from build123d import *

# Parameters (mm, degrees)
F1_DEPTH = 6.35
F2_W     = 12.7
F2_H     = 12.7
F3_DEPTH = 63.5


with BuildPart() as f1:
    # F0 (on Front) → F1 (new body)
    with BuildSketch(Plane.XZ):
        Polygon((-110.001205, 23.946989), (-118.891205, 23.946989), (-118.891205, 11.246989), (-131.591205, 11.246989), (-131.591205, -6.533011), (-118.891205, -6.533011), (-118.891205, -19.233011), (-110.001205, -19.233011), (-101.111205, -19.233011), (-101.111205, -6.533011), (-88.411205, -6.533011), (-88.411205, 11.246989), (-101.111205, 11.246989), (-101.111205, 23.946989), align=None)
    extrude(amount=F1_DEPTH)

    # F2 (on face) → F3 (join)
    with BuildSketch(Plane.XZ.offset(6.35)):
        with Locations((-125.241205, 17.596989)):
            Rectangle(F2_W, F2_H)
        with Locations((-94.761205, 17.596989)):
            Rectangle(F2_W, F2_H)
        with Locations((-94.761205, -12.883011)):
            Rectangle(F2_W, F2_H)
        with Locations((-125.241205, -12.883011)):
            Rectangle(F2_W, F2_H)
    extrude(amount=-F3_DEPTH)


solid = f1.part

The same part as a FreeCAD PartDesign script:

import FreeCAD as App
import Part
import Sketcher
Q = App.Units.Quantity

doc = App.newDocument("Part")
body = doc.addObject("PartDesign::Body", "Body")

# Sketch on XZ plane
sketch1 = body.newObject("Sketcher::SketchObject", "Sketch")
sketch1.AttachmentSupport = (doc.getObject("XZ_Plane"), [""])
sketch1.MapMode = "FlatFace"
sketch1.addGeometry([
    Part.LineSegment(App.Vector(-119, 24, 0), App.Vector(-119, 11, 0)),  # 0
    Part.LineSegment(App.Vector(-119, 11, 0), App.Vector(-132, 11, 0)),  # 1
    Part.LineSegment(App.Vector(-132, 11, 0), App.Vector(-132, -7, 0)),  # 2
    Part.LineSegment(App.Vector(-132, -7, 0), App.Vector(-119, -7, 0)),  # 3
    Part.LineSegment(App.Vector(-119, -7, 0), App.Vector(-119, -19, 0)),  # 4
    Part.LineSegment(App.Vector(-119, -19, 0), App.Vector(-101, -19, 0)),  # 5
    Part.LineSegment(App.Vector(-101, -19, 0), App.Vector(-101, -7, 0)),  # 6
    Part.LineSegment(App.Vector(-101, -7, 0), App.Vector(-88, -7, 0)),  # 7
    Part.LineSegment(App.Vector(-88, -7, 0), App.Vector(-88, 11, 0)),  # 8
    Part.LineSegment(App.Vector(-88, 11, 0), App.Vector(-101, 11, 0)),  # 9
    Part.LineSegment(App.Vector(-101, 11, 0), App.Vector(-101, 24, 0)),  # 10
    Part.LineSegment(App.Vector(-101, 24, 0), App.Vector(-119, 24, 0)),  # 11
], False)
sketch1.addConstraint([
    Sketcher.Constraint("Coincident", 0, 2, 1, 1),
    Sketcher.Constraint("Coincident", 1, 2, 2, 1),
    Sketcher.Constraint("Coincident", 2, 2, 3, 1),
    Sketcher.Constraint("Coincident", 3, 2, 4, 1),
    Sketcher.Constraint("Coincident", 4, 2, 5, 1),
    Sketcher.Constraint("Coincident", 5, 2, 6, 1),
    Sketcher.Constraint("Coincident", 6, 2, 7, 1),
    Sketcher.Constraint("Coincident", 7, 2, 8, 1),
    Sketcher.Constraint("Coincident", 8, 2, 9, 1),
    Sketcher.Constraint("Coincident", 9, 2, 10, 1),
    Sketcher.Constraint("Coincident", 10, 2, 11, 1),
    Sketcher.Constraint("Coincident", 11, 2, 0, 1),
    Sketcher.Constraint("Vertical", 0),
    Sketcher.Constraint("Horizontal", 1),
    Sketcher.Constraint("Vertical", 2),
    Sketcher.Constraint("Horizontal", 3),
    Sketcher.Constraint("Vertical", 4),
    Sketcher.Constraint("Horizontal", 5),
    Sketcher.Constraint("Vertical", 6),
    Sketcher.Constraint("Horizontal", 7),
    Sketcher.Constraint("Vertical", 8),
    Sketcher.Constraint("Horizontal", 9),
    Sketcher.Constraint("Vertical", 10),
    Sketcher.Constraint("Horizontal", 11),
    Sketcher.Constraint("Horizontal", 3, 2, 6, 2),
    Sketcher.Constraint("Horizontal", 1, 2, 8, 2),
    Sketcher.Constraint("Vertical", 0, 2, 3, 2),
    Sketcher.Constraint("Vertical", 6, 2, 9, 2),
    Sketcher.Constraint("Equal", 3, 7),
    Sketcher.Constraint("Equal", 9, 0),
    Sketcher.Constraint("Equal", 11, 2),
    Sketcher.Constraint("Equal", 0, 4),
    Sketcher.Constraint("DistanceX", 1, 2, 1, 1, Q("0.5 in")),
    Sketcher.Constraint("DistanceX", 5, 1, 5, 2, Q("0.7 in")),
    Sketcher.Constraint("DistanceY", -1, 1, 0, 2, 11.246989),
    Sketcher.Constraint("DistanceX", 0, 2, -1, 1, 118.891205),
])
pad1 = body.newObject("PartDesign::Pad", "Pad")
pad1.Profile = sketch1
pad1.Length = Q("0.25 in")

# Sketch on XZ plane
sketch2 = body.newObject("Sketcher::SketchObject", "Sketch001")
sketch2.AttachmentSupport = (doc.getObject("XZ_Plane"), [""])
sketch2.MapMode = "FlatFace"
sketch2.AttachmentOffset = App.Placement(App.Vector(0, 0, 0.25 * 25.4), App.Rotation())
sketch2.addGeometry([
    Part.LineSegment(App.Vector(-132, 24, 0), App.Vector(-132, 11, 0)),  # 0
    Part.LineSegment(App.Vector(-132, 11, 0), App.Vector(-119, 11, 0)),  # 1
    Part.LineSegment(App.Vector(-119, 11, 0), App.Vector(-119, 24, 0)),  # 2
    Part.LineSegment(App.Vector(-119, 24, 0), App.Vector(-132, 24, 0)),  # 3
    Part.LineSegment(App.Vector(-101, 24, 0), App.Vector(-101, 11, 0)),  # 4
    Part.LineSegment(App.Vector(-101, 11, 0), App.Vector(-88, 11, 0)),  # 5
    Part.LineSegment(App.Vector(-88, 11, 0), App.Vector(-88, 24, 0)),  # 6
    Part.LineSegment(App.Vector(-88, 24, 0), App.Vector(-101, 24, 0)),  # 7
    Part.LineSegment(App.Vector(-101, -7, 0), App.Vector(-101, -19, 0)),  # 8
    Part.LineSegment(App.Vector(-101, -19, 0), App.Vector(-88, -19, 0)),  # 9
    Part.LineSegment(App.Vector(-88, -19, 0), App.Vector(-88, -7, 0)),  # 10
    Part.LineSegment(App.Vector(-88, -7, 0), App.Vector(-101, -7, 0)),  # 11
    Part.LineSegment(App.Vector(-132, -7, 0), App.Vector(-132, -19, 0)),  # 12
    Part.LineSegment(App.Vector(-132, -19, 0), App.Vector(-119, -19, 0)),  # 13
    Part.LineSegment(App.Vector(-119, -19, 0), App.Vector(-119, -7, 0)),  # 14
    Part.LineSegment(App.Vector(-119, -7, 0), App.Vector(-132, -7, 0)),  # 15
], False)
sketch2.addConstraint([
    Sketcher.Constraint("Coincident", 0, 2, 1, 1),
    Sketcher.Constraint("Coincident", 1, 2, 2, 1),
    Sketcher.Constraint("Coincident", 2, 2, 3, 1),
    Sketcher.Constraint("Coincident", 3, 2, 0, 1),
    Sketcher.Constraint("Coincident", 4, 2, 5, 1),
    Sketcher.Constraint("Coincident", 5, 2, 6, 1),
    Sketcher.Constraint("Coincident", 6, 2, 7, 1),
    Sketcher.Constraint("Coincident", 7, 2, 4, 1),
    Sketcher.Constraint("Coincident", 8, 2, 9, 1),
    Sketcher.Constraint("Coincident", 9, 2, 10, 1),
    Sketcher.Constraint("Coincident", 10, 2, 11, 1),
    Sketcher.Constraint("Coincident", 11, 2, 8, 1),
    Sketcher.Constraint("Coincident", 12, 2, 13, 1),
    Sketcher.Constraint("Coincident", 13, 2, 14, 1),
    Sketcher.Constraint("Coincident", 14, 2, 15, 1),
    Sketcher.Constraint("Coincident", 15, 2, 12, 1),
    Sketcher.Constraint("Vertical", 0),
    Sketcher.Constraint("Horizontal", 1),
    Sketcher.Constraint("Vertical", 2),
    Sketcher.Constraint("Horizontal", 3),
    Sketcher.Constraint("Vertical", 4),
    Sketcher.Constraint("Horizontal", 5),
    Sketcher.Constraint("Vertical", 6),
    Sketcher.Constraint("Horizontal", 7),
    Sketcher.Constraint("Vertical", 8),
    Sketcher.Constraint("Horizontal", 9),
    Sketcher.Constraint("Vertical", 10),
    Sketcher.Constraint("Horizontal", 11),
    Sketcher.Constraint("Vertical", 12),
    Sketcher.Constraint("Horizontal", 13),
    Sketcher.Constraint("Vertical", 14),
    Sketcher.Constraint("Horizontal", 15),
    Sketcher.Constraint("Horizontal", 1, 2, 4, 2),
    Sketcher.Constraint("Horizontal", 3, 2, 6, 2),
    Sketcher.Constraint("Horizontal", 9, 2, 12, 2),
    Sketcher.Constraint("Horizontal", 11, 2, 14, 2),
    Sketcher.Constraint("Vertical", 7, 2, 8, 2),
    Sketcher.Constraint("Vertical", 6, 2, 9, 2),
    Sketcher.Constraint("Vertical", 3, 2, 12, 2),
    Sketcher.Constraint("Vertical", 2, 2, 13, 2),
    Sketcher.Constraint("Equal", 3, 5),
    Sketcher.Constraint("Equal", 15, 0),
    Sketcher.Constraint("Equal", 6, 8),
    Sketcher.Constraint("DistanceX", 1, 1, 1, 2, Q("0.5 in")),
    Sketcher.Constraint("DistanceX", 1, 2, 4, 2, Q("0.7 in")),
    Sketcher.Constraint("DistanceY", 8, 2, 4, 2, Q("1.2 in")),
    Sketcher.Constraint("DistanceY", -1, 1, 0, 2, 11.246989),
    Sketcher.Constraint("DistanceX", 0, 2, -1, 1, 131.591205),
])
pad2 = body.newObject("PartDesign::Pad", "Pad001")
pad2.Profile = sketch2
pad2.Length = Q("2.5 in")
pad2.Reversed = True

doc.recompute()
